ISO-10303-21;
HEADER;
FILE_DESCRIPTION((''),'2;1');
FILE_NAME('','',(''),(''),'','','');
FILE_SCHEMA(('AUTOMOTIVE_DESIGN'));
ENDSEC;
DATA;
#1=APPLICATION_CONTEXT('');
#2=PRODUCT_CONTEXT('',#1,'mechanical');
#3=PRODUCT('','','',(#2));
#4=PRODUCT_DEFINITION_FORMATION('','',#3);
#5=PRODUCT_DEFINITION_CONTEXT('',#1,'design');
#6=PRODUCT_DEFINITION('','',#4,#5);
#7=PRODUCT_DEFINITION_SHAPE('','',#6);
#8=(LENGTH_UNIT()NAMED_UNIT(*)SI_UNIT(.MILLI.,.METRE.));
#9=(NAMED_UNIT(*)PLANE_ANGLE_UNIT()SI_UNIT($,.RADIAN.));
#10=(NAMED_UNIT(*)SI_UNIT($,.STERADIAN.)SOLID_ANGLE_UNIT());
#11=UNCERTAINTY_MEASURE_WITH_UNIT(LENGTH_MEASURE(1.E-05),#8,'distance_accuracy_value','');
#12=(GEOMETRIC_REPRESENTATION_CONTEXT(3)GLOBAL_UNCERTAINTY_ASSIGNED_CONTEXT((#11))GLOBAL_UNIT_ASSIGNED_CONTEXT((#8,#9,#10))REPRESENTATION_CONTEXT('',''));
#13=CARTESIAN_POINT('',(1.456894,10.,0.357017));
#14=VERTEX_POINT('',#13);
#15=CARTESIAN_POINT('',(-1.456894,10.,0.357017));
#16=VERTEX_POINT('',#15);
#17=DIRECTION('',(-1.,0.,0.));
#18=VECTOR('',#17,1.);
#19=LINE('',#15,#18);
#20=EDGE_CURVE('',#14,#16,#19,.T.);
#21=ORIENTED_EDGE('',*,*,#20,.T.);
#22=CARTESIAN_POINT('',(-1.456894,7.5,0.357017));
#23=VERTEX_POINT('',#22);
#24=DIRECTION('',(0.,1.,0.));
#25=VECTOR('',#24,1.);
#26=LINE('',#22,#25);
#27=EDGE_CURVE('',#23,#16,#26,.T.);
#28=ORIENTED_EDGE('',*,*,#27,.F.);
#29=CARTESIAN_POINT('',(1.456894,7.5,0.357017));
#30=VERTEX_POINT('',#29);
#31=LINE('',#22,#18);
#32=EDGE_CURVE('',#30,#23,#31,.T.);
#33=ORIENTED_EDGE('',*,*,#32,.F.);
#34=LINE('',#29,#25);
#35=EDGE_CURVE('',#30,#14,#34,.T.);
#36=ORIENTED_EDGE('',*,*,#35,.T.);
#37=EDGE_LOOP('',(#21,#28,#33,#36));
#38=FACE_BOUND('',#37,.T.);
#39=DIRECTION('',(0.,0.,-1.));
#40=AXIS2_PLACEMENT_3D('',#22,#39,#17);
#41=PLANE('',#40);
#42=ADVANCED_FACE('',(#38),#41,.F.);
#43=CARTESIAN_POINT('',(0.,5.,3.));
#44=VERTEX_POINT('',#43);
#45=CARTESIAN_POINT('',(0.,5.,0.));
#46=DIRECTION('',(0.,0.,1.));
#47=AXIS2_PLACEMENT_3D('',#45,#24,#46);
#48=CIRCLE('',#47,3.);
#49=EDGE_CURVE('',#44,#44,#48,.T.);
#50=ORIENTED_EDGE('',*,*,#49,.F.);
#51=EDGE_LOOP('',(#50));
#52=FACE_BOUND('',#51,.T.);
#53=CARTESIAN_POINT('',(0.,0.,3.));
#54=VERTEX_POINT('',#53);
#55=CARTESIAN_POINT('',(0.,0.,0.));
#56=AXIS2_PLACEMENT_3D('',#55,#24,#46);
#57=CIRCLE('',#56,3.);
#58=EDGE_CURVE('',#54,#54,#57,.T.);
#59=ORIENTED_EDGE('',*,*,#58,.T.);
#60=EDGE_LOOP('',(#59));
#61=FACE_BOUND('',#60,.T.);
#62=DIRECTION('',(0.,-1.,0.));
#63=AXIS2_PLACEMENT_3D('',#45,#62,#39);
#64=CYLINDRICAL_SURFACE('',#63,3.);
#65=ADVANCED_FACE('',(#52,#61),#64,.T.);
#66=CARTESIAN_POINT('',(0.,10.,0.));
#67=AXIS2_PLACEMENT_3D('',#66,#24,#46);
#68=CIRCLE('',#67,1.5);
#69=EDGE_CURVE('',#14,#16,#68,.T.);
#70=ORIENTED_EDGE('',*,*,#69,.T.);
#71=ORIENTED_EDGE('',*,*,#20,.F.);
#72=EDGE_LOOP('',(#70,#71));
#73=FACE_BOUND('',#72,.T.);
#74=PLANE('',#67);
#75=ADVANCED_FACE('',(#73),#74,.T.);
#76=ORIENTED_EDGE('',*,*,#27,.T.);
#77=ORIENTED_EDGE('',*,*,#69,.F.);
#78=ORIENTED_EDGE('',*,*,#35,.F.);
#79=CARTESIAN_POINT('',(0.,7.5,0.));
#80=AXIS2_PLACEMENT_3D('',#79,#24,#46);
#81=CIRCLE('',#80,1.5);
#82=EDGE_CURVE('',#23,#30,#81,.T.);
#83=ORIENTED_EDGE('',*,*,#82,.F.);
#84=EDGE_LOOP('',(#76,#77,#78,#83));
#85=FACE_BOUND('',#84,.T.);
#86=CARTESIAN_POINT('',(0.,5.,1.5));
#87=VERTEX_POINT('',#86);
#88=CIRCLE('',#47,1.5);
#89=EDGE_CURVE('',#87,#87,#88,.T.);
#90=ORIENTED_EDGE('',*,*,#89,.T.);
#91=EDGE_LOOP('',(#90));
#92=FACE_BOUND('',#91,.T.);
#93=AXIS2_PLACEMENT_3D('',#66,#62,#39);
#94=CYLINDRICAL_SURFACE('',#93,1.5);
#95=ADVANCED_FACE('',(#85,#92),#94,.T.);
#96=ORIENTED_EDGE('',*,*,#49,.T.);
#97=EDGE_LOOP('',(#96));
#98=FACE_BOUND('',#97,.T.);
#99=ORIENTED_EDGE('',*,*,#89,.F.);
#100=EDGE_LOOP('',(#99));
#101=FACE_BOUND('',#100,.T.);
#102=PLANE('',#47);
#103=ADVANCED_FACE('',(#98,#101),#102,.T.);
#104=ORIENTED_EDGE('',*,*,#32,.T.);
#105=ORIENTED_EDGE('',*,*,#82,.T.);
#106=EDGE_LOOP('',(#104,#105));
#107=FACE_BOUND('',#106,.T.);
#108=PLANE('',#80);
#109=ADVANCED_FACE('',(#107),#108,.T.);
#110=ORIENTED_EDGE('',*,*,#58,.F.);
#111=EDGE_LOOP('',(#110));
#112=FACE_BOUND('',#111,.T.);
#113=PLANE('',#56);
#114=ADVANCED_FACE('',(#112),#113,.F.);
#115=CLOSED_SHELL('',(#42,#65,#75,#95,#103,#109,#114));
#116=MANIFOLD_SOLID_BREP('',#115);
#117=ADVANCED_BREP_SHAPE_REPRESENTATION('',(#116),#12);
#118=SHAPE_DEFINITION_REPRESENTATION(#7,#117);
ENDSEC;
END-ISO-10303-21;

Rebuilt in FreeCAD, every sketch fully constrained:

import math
import FreeCAD as App
import Part
import Sketcher

V = App.Vector

doc = App.newDocument("Part")
params = doc.addObject("Spreadsheet::Sheet", "Params")
for row, (alias, value) in enumerate([
    ("sketch1_diameter", "6 mm"),
    ("pad1_length", "5 mm"),
    ("sketch2_diameter", "3 mm"),
    ("pad2_length", "5 mm"),
    ("sketch3_radius", "1.5 mm"),
    ("pocket1_length", "2.5 mm"),
], start=1):
    params.set(f"A{row}", alias)
    params.set(f"B{row}", "=" + value)
    params.setAlias(f"B{row}", alias)

body = doc.addObject("PartDesign::Body", "Body")

# Sketch on XZ plane
sketch1 = body.newObject("Sketcher::SketchObject", "Sketch")
sketch1.AttachmentSupport = (doc.getObject("XZ_Plane"), [""])
sketch1.MapMode = "FlatFace"
sketch1.addGeometry(Part.Circle(V(0, 0, 0), V(0, 0, 1), 3), False)
sketch1.addConstraint(Sketcher.Constraint("Coincident", 0, 3, -1, 1))
sketch1.addConstraint(Sketcher.Constraint("Diameter", 0, 6.0))
sketch1.setExpression("Constraints[1]", "Params.sketch1_diameter")
pad1 = body.newObject("PartDesign::Pad", "Pad")
pad1.Profile = sketch1
pad1.setExpression("Length", "Params.pad1_length")
pad1.Reversed = True

# Sketch on XZ plane
sketch2 = body.newObject("Sketcher::SketchObject", "Sketch001")
sketch2.AttachmentSupport = (doc.getObject("XZ_Plane"), [""])
sketch2.MapMode = "FlatFace"
sketch2.AttachmentOffset = App.Placement(V(0, 0, -5), App.Rotation())
sketch2.addGeometry(Part.Circle(V(0, 0, 0), V(0, 0, 1), 1.5), False)
sketch2.addConstraint(Sketcher.Constraint("Coincident", 0, 3, -1, 1))
sketch2.addConstraint(Sketcher.Constraint("Diameter", 0, 3.0))
sketch2.setExpression("Constraints[1]", "Params.sketch2_diameter")
pad2 = body.newObject("PartDesign::Pad", "Pad001")
pad2.Profile = sketch2
pad2.setExpression("Length", "Params.pad2_length")
pad2.Reversed = True

# Sketch on XZ plane
sketch3 = body.newObject("Sketcher::SketchObject", "Sketch002")
sketch3.AttachmentSupport = (doc.getObject("XZ_Plane"), [""])
sketch3.MapMode = "FlatFace"
sketch3.AttachmentOffset = App.Placement(V(0, 0, -7.5), App.Rotation())
sketch3.addGeometry(Part.LineSegment(V(1.5, 0.4, 0), V(-1.5, 0.4, 0)), False)
sketch3.addGeometry(Part.ArcOfCircle(Part.Circle(V(0, 0, 0), V(0, 0, 1), 1.5), math.radians(14), math.radians(166)), False)
sketch3.addConstraint(Sketcher.Constraint("Coincident", 0, 1, 1, 1))
sketch3.addConstraint(Sketcher.Constraint("Coincident", 1, 2, 0, 2))
sketch3.addConstraint(Sketcher.Constraint("Horizontal", 0))
sketch3.addConstraint(Sketcher.Constraint("Coincident", 1, 3, -1, 1))
sketch3.addConstraint(Sketcher.Constraint("Radius", 1, 1.5))
sketch3.addConstraint(Sketcher.Constraint("DistanceX", 0, 2, 0, 1, 2.913787))
sketch3.setExpression("Constraints[4]", "Params.sketch3_radius")
pocket1 = body.newObject("PartDesign::Pocket", "Pocket")
pocket1.Profile = sketch3
pocket1.setExpression("Length", "Params.pocket1_length")

doc.recompute()
